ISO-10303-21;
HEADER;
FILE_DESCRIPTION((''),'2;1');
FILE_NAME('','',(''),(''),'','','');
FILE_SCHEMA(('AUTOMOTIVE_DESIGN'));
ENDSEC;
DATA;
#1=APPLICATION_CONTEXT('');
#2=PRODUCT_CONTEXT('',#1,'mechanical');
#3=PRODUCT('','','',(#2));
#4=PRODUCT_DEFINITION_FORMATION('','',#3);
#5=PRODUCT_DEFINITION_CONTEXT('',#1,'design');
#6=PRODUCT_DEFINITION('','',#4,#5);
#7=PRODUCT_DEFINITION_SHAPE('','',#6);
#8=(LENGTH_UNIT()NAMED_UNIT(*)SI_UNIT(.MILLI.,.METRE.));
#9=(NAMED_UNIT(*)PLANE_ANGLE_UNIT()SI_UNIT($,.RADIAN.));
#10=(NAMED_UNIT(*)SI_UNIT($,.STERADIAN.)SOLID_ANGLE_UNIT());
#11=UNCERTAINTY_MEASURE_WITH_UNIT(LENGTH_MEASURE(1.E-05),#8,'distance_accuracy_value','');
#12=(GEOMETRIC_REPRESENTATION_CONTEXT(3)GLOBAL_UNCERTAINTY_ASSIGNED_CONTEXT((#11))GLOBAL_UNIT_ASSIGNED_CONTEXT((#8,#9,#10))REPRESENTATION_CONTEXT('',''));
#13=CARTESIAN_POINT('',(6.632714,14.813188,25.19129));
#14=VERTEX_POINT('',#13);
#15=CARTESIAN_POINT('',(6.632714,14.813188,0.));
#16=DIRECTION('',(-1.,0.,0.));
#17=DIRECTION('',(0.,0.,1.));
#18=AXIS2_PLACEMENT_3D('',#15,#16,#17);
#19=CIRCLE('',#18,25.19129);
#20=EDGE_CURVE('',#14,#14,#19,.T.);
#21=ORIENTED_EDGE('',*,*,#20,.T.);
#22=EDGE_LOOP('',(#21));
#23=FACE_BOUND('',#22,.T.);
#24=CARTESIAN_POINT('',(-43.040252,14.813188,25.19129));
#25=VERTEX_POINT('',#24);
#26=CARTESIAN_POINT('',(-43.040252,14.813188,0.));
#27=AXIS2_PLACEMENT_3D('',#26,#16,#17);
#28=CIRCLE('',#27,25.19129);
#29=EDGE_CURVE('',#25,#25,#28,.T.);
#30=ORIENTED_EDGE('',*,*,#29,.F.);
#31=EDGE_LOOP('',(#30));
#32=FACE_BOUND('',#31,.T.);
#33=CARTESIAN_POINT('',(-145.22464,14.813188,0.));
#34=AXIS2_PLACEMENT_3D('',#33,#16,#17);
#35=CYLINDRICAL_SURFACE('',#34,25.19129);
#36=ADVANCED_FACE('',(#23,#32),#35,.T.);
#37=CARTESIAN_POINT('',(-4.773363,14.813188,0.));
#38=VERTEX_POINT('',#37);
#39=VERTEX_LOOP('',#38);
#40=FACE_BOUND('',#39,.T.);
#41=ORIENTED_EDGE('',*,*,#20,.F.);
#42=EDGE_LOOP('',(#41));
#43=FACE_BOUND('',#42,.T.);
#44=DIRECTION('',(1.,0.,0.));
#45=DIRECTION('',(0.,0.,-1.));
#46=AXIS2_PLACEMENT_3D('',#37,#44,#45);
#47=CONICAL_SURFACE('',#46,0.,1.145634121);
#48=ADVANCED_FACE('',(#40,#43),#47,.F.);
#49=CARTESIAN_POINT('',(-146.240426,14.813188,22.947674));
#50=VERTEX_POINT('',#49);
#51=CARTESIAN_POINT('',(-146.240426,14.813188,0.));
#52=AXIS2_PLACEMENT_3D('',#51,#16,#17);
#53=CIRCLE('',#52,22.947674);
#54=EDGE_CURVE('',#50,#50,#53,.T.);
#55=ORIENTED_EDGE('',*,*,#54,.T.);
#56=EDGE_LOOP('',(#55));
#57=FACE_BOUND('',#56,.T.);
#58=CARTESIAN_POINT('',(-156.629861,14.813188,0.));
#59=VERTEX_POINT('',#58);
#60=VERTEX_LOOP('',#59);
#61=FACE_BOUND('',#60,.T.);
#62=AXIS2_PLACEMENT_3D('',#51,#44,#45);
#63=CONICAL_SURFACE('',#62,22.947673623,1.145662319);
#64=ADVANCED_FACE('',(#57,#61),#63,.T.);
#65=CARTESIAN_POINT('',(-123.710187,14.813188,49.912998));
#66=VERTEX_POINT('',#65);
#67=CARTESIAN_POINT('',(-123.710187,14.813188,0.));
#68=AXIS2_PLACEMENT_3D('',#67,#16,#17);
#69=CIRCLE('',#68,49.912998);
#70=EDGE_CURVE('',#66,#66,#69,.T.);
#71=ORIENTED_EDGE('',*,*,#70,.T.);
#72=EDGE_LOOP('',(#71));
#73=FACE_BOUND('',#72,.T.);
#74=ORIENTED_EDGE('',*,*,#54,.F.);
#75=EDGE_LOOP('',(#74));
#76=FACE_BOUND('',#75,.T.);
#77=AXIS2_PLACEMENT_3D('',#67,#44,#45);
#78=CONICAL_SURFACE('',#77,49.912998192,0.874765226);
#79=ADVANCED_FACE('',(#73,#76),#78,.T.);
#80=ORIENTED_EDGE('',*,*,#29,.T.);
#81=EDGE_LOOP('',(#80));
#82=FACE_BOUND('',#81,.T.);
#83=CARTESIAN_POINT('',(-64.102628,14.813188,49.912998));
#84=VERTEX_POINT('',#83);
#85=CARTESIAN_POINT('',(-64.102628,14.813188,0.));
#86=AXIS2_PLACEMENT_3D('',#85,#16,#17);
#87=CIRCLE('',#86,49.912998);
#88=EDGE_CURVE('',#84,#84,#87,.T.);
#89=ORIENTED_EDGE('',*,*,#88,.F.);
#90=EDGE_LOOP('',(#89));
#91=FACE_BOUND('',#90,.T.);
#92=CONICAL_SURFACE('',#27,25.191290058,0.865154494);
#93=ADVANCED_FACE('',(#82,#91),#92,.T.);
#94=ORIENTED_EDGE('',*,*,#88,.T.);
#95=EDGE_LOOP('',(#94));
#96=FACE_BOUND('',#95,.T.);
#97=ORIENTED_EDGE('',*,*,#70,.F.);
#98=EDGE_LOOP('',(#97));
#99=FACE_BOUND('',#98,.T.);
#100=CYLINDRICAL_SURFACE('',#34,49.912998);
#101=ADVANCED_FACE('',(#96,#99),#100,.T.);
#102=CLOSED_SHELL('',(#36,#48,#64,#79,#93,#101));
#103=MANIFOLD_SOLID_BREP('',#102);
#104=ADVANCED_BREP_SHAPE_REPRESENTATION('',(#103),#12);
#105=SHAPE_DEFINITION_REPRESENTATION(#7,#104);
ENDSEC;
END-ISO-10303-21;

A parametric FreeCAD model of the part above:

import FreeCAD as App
import Part
import Sketcher
from FreeCAD import Vector
Q = App.Units.Quantity

doc = App.newDocument("Part")
body = doc.addObject("PartDesign::Body", "Body")

# Sketch on XY plane
sketch1 = body.newObject("Sketcher::SketchObject", "Sketch")
sketch1.AttachmentSupport = (doc.getObject("XY_Plane"), [""])
sketch1.MapMode = "FlatFace"
sketch1.addGeometry(Part.LineSegment(Vector(7, 40, 0), Vector(-43, 40, 0)), False)
sketch1.addGeometry(Part.LineSegment(Vector(-43, 40, 0), Vector(-64, 65, 0)), False)
sketch1.addGeometry(Part.LineSegment(Vector(-64, 65, 0), Vector(-124, 65, 0)), False)
sketch1.addGeometry(Part.LineSegment(Vector(-124, 65, 0), Vector(-146, 38, 0)), False)
sketch1.addGeometry(Part.LineSegment(Vector(-146, 38, 0), Vector(-157, 15, 0)), False)
sketch1.addGeometry(Part.LineSegment(Vector(-157, 15, 0), Vector(-5, 15, 0)), False)
sketch1.addGeometry(Part.LineSegment(Vector(-5, 15, 0), Vector(7, 40, 0)), False)
sketch1.addGeometry(Part.LineSegment(Vector(-157, 15, 0), Vector(7, 15, 0)), True)  # axis
sketch1.addConstraint(Sketcher.Constraint("Coincident", 0, 2, 1, 1))
sketch1.addConstraint(Sketcher.Constraint("Coincident", 1, 2, 2, 1))
sketch1.addConstraint(Sketcher.Constraint("Coincident", 2, 2, 3, 1))
sketch1.addConstraint(Sketcher.Constraint("Coincident", 3, 2, 4, 1))
sketch1.addConstraint(Sketcher.Constraint("Coincident", 4, 2, 5, 1))
sketch1.addConstraint(Sketcher.Constraint("Coincident", 5, 2, 6, 1))
sketch1.addConstraint(Sketcher.Constraint("Coincident", 6, 2, 0, 1))
sketch1.addConstraint(Sketcher.Constraint("Horizontal", 0))
sketch1.addConstraint(Sketcher.Constraint("Horizontal", 2))
sketch1.addConstraint(Sketcher.Constraint("Horizontal", 5))
sketch1.addConstraint(Sketcher.Constraint("Horizontal", 7))
sketch1.addConstraint(Sketcher.Constraint("Coincident", 7, 1, 4, 2))
sketch1.addConstraint(Sketcher.Constraint("Vertical", 6, 2, 7, 2))
sketch1.addConstraint(Sketcher.Constraint("Angle", 6, Q("65.64 deg")))
sketch1.addConstraint(Sketcher.Constraint("Distance", 4, Q("25.19 mm")))
sketch1.addConstraint(Sketcher.Constraint("DistanceX", 5, 1, 5, 2, Q("151.856498 mm")))
sketch1.addConstraint(Sketcher.Constraint("DistanceY", 4, 2, 2, 2, Q("49.912998 mm")))
sketch1.addConstraint(Sketcher.Constraint("DistanceX", 2, 2, 2, 1, Q("59.60756 mm")))
sketch1.addConstraint(Sketcher.Constraint("DistanceX", 2, 2, 6, 2, Q("130.342901 mm")))
sketch1.addConstraint(Sketcher.Constraint("DistanceX", 0, 2, 0, 1, Q("49.672966 mm")))
sketch1.addConstraint(Sketcher.Constraint("DistanceX", 7, 1, 7, 2, Q("163.262575 mm")))
sketch1.addConstraint(Sketcher.Constraint("DistanceY", -1, 1, 0, 2, Q("40.004478 mm")))
sketch1.addConstraint(Sketcher.Constraint("DistanceY", -1, 1, 3, 2, Q("37.760862 mm")))
sketch1.addConstraint(Sketcher.Constraint("DistanceX", 4, 2, -1, 1, Q("156.629861 mm")))
revolution = body.newObject("PartDesign::Revolution", "Revolution")
revolution.Profile = sketch1
revolution.ReferenceAxis = (sketch1, ["Axis0"])
revolution.Angle = 360

doc.recompute()
